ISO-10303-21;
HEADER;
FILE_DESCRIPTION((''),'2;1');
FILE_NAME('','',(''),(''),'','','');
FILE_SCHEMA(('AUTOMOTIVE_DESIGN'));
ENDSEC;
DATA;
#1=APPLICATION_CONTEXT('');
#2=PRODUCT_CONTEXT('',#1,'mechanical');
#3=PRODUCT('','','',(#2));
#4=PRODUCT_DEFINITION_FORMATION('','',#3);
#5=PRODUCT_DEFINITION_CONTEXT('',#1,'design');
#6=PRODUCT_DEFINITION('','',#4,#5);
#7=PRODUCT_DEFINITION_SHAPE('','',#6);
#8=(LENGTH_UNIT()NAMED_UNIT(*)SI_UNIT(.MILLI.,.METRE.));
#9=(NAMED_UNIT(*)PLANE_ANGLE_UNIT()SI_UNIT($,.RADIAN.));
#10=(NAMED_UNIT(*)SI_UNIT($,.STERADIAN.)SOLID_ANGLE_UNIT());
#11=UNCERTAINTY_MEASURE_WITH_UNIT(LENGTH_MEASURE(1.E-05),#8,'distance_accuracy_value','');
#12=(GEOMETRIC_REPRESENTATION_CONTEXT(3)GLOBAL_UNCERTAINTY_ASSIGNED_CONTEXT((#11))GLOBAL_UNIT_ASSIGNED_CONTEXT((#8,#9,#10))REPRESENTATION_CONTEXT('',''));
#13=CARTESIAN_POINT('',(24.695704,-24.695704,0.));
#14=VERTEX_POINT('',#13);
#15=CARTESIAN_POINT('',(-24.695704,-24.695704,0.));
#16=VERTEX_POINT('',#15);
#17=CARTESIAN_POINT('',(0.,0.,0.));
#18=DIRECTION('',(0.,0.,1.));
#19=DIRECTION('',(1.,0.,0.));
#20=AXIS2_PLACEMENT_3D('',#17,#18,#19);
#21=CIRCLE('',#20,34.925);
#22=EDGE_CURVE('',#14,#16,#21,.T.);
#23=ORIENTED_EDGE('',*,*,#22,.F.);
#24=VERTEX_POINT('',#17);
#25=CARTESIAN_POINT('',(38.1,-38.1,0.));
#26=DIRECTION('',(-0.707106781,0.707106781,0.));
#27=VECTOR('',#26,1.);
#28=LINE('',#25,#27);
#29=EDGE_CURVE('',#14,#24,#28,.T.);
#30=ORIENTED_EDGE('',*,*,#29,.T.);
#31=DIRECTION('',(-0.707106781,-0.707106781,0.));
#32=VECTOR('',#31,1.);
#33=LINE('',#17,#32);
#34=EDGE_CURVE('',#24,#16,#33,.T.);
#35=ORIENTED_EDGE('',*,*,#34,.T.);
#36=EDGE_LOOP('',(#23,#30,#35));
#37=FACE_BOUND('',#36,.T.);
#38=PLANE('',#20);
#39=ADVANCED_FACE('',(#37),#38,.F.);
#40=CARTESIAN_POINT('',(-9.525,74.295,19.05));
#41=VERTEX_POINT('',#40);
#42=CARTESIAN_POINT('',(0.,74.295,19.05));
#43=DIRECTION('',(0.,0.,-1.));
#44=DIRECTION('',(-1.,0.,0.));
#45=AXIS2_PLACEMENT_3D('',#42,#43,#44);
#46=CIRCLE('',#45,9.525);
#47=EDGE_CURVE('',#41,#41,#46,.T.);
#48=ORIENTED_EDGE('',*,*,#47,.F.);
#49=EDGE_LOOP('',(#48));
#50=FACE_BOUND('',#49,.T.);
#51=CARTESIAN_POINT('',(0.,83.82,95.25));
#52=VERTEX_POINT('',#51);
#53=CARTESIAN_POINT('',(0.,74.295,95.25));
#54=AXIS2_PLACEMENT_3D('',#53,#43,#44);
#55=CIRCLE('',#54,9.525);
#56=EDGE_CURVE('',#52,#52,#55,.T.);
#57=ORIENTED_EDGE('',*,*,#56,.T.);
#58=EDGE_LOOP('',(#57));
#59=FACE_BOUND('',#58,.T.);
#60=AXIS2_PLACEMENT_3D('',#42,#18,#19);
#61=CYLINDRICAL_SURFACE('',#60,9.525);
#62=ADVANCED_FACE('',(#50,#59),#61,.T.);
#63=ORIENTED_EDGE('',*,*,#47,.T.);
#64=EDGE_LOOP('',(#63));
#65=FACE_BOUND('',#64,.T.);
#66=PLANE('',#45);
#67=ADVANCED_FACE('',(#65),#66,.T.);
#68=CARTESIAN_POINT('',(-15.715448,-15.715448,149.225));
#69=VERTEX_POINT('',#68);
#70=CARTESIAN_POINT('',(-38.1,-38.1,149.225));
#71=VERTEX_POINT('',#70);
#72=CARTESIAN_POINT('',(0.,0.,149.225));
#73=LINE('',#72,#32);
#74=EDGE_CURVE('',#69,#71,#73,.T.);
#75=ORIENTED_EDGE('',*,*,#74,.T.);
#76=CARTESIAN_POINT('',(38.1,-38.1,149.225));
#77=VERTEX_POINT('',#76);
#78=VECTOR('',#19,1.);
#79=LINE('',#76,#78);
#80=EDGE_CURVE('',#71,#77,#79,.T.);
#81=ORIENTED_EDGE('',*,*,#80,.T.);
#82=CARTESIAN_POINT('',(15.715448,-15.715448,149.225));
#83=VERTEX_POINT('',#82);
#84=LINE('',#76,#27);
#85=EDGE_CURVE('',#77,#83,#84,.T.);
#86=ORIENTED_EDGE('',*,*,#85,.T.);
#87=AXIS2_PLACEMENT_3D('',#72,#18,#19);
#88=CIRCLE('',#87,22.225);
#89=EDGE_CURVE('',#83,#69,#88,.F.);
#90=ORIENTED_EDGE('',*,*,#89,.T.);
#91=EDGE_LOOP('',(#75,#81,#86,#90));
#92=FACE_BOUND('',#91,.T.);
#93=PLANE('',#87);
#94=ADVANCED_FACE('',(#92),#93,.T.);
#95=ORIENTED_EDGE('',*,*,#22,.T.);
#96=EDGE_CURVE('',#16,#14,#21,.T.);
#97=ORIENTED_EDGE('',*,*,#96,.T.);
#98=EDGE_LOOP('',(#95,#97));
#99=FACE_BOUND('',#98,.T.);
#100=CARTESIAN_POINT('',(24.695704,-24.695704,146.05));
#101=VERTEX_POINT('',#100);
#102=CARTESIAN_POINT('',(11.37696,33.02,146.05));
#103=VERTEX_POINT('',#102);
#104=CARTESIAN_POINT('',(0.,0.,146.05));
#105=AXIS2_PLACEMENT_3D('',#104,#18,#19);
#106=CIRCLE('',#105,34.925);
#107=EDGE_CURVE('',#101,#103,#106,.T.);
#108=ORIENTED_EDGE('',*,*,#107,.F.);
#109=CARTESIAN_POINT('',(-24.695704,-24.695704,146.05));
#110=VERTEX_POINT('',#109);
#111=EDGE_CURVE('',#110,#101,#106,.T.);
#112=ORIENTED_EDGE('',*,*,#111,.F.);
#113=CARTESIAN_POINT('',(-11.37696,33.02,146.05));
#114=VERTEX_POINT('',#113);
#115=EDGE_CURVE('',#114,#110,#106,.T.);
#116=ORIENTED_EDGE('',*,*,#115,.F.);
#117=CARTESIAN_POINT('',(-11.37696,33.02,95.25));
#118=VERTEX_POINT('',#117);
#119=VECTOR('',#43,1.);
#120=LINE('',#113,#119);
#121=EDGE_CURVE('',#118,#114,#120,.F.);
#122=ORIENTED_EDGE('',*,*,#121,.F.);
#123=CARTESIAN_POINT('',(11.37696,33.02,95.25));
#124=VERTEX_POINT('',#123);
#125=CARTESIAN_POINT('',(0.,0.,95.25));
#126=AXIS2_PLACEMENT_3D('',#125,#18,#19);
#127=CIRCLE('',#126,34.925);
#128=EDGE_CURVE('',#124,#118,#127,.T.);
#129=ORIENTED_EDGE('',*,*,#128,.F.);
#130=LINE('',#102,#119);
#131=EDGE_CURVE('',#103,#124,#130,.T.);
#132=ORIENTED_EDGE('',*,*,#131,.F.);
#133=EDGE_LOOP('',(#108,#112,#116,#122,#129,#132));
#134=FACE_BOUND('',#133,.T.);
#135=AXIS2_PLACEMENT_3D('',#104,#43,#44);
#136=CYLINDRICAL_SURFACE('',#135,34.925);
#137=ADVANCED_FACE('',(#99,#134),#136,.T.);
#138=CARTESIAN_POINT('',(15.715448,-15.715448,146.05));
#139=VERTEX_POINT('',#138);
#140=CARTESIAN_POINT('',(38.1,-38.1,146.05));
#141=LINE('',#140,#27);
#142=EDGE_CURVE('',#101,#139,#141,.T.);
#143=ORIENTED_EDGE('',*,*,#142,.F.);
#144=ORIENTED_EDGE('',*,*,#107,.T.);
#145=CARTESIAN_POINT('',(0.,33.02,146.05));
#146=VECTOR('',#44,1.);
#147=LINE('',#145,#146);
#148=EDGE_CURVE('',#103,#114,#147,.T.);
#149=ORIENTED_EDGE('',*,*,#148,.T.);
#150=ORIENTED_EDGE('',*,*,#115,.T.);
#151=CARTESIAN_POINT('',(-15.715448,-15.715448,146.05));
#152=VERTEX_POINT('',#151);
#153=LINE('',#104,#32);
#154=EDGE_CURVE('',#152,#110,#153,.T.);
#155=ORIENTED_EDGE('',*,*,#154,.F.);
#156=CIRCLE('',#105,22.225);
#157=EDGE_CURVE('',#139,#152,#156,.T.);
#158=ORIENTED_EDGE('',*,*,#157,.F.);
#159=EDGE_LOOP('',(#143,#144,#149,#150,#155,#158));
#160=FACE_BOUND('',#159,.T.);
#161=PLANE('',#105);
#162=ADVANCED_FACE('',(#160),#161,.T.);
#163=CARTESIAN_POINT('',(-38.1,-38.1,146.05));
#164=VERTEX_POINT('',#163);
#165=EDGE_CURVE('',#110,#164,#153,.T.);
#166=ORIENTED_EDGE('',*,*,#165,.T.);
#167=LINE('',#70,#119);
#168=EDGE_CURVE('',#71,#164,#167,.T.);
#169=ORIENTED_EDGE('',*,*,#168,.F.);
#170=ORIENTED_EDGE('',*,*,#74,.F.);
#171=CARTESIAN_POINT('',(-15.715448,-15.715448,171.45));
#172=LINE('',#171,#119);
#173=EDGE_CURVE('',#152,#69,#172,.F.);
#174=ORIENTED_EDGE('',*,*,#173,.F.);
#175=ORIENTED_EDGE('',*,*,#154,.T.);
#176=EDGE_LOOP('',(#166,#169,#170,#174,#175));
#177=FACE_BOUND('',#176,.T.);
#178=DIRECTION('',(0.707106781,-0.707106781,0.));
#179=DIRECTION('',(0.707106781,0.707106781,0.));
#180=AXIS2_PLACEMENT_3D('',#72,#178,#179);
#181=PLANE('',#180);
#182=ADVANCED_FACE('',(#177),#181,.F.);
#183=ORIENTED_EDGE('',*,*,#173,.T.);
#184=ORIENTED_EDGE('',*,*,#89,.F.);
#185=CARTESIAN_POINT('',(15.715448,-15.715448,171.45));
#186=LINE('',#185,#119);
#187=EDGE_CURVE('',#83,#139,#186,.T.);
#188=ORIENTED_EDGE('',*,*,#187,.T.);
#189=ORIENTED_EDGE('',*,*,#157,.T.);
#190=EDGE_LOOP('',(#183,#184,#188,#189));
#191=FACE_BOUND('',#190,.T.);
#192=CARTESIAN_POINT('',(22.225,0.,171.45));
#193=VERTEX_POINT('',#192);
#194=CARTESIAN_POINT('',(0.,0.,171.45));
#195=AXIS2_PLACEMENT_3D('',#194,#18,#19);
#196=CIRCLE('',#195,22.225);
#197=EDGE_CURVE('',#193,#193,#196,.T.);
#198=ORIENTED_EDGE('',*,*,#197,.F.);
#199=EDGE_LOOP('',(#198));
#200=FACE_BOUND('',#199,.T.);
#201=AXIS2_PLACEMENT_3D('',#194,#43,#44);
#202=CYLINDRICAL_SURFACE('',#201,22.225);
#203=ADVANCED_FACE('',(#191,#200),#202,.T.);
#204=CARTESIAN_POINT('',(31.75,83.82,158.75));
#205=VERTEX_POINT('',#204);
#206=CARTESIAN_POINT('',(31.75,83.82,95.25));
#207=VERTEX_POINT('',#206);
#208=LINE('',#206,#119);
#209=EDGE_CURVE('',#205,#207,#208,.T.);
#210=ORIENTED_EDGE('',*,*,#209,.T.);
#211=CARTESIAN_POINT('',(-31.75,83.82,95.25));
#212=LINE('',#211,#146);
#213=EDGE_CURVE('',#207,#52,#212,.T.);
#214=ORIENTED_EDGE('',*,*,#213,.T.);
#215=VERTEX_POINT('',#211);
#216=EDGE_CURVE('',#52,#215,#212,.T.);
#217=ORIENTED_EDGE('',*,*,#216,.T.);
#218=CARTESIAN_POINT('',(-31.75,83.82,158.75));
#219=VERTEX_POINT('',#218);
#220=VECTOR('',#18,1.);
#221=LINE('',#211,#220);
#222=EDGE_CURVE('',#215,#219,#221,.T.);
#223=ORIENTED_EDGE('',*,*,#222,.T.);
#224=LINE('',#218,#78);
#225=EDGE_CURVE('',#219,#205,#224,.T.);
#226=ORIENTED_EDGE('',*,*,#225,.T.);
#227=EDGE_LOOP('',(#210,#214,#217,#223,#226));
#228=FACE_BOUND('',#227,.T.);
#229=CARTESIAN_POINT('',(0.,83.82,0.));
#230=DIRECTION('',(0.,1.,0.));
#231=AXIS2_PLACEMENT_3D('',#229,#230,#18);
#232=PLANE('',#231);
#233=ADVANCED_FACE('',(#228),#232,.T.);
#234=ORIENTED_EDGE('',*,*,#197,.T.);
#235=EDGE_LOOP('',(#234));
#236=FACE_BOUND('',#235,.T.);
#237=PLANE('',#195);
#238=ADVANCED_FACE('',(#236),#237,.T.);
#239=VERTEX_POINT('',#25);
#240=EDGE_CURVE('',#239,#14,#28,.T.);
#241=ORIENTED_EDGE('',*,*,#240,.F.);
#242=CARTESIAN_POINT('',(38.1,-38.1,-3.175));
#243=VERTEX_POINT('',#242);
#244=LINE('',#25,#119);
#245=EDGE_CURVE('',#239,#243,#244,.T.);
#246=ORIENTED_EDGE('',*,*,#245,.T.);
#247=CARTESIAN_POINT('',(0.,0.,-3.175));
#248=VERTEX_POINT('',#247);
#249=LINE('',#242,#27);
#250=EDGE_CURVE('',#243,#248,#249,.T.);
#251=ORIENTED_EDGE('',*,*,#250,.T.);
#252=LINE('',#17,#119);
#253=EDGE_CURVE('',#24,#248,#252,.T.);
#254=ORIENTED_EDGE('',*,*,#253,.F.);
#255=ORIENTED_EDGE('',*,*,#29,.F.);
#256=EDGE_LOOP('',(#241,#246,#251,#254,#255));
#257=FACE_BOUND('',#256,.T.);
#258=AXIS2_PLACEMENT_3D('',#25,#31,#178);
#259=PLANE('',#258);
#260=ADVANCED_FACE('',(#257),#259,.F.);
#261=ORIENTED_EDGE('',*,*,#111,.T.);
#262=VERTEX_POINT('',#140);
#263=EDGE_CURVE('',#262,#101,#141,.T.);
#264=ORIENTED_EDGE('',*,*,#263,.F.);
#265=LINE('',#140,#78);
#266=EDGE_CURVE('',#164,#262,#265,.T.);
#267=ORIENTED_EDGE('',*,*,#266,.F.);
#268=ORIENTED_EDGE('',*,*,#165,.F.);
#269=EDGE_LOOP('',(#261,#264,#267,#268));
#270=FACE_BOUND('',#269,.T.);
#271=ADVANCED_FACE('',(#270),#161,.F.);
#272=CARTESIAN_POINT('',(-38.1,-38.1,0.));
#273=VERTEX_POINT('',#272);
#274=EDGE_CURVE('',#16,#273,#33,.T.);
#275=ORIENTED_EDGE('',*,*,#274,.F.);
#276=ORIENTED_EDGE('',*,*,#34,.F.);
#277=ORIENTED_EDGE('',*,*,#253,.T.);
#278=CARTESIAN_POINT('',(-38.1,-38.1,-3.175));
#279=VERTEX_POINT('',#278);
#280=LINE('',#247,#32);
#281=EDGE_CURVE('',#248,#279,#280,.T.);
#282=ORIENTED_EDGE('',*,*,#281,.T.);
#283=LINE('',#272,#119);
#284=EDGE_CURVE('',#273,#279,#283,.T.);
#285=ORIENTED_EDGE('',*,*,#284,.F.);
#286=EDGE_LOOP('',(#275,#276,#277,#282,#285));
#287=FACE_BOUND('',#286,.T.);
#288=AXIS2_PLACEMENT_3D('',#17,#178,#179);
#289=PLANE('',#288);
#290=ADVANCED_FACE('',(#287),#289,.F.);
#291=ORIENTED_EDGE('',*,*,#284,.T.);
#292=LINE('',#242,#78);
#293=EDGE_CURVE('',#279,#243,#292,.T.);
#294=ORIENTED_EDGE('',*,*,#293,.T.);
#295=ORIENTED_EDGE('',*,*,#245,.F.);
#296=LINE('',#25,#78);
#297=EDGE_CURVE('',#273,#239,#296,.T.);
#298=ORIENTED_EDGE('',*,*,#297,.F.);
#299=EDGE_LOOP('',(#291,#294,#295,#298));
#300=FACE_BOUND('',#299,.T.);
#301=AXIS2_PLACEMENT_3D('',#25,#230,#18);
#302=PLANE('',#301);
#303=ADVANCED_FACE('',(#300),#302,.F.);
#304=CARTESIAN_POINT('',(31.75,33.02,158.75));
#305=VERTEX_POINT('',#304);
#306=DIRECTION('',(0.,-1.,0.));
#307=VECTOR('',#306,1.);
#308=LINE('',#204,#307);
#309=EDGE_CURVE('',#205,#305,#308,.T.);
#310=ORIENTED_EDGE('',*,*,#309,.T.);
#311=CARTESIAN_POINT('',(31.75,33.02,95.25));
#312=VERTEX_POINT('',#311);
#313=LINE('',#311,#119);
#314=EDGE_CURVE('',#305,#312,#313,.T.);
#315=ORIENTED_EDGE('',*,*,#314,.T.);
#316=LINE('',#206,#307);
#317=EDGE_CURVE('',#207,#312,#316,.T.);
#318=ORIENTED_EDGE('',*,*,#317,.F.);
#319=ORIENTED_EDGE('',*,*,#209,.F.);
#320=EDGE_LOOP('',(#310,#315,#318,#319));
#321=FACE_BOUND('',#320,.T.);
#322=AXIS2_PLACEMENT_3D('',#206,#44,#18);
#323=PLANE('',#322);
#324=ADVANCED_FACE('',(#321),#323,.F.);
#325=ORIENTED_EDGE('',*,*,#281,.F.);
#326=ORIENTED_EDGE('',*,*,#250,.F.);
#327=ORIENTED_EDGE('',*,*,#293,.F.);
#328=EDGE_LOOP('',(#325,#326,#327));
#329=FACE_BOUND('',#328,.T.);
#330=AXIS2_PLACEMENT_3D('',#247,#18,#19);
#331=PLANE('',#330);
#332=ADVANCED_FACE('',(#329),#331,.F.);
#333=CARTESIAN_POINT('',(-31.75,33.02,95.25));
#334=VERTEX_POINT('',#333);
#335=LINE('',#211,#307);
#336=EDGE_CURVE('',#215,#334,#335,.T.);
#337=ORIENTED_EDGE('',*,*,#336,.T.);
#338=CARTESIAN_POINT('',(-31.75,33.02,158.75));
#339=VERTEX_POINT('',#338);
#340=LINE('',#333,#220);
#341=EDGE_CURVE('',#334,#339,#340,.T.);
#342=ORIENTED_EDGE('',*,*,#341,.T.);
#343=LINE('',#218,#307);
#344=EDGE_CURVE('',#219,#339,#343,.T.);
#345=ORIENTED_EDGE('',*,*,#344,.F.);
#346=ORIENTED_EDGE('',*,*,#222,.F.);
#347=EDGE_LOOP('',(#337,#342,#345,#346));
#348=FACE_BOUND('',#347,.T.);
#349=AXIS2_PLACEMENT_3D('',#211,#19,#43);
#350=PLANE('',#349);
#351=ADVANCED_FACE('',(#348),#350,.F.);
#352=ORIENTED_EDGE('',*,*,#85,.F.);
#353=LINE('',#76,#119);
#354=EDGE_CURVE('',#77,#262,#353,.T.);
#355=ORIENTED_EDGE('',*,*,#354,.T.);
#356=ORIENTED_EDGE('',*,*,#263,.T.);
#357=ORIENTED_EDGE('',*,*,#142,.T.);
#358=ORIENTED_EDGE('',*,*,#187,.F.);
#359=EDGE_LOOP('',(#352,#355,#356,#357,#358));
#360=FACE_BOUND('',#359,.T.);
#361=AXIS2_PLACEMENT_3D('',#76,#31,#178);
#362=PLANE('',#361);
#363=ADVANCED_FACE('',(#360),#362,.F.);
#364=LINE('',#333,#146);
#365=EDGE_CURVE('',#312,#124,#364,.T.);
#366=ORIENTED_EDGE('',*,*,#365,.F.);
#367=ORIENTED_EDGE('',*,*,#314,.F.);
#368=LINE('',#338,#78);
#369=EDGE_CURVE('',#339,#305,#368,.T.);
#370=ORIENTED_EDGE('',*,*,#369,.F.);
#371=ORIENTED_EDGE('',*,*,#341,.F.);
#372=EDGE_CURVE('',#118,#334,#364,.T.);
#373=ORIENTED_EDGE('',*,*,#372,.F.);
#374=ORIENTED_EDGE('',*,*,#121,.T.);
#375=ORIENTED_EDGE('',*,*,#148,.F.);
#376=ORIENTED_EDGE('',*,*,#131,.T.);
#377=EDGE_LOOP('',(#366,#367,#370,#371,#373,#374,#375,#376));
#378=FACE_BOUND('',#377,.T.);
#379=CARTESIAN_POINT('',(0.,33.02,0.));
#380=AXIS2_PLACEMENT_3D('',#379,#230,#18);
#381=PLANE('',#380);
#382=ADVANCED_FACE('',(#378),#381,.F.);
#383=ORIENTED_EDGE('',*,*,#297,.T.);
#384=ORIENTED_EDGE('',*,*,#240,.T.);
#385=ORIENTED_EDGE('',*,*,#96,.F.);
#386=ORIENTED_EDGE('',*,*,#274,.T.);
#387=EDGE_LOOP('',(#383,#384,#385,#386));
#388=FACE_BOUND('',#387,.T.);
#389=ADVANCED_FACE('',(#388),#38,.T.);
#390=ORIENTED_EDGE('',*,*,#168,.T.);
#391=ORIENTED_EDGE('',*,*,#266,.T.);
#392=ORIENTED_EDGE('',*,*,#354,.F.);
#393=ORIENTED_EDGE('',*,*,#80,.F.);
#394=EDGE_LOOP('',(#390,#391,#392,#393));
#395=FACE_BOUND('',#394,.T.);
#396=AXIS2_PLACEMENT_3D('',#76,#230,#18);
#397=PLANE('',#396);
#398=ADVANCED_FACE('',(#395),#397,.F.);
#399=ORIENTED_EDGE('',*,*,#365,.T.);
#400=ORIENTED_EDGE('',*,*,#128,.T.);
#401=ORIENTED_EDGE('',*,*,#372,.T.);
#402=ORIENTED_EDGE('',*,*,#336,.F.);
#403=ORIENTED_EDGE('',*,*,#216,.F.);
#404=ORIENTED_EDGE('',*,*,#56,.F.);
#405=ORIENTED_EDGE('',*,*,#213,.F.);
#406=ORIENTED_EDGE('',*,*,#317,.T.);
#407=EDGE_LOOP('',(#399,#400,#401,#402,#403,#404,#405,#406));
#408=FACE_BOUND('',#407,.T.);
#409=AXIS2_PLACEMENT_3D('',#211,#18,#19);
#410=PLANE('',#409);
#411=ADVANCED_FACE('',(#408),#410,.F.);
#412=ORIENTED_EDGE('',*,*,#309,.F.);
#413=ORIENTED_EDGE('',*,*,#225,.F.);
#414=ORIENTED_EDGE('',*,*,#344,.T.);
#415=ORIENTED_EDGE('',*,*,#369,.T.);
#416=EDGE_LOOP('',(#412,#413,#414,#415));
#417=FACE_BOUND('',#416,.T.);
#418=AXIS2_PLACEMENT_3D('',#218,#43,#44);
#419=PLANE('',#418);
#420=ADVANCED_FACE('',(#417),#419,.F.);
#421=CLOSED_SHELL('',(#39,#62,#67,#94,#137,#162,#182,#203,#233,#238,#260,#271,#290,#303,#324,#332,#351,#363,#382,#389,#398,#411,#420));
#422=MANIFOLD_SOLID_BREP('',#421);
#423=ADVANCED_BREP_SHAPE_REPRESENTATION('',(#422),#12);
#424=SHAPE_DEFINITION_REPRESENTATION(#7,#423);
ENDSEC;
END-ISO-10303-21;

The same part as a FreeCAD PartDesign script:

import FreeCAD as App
import Part
import Sketcher
from FreeCAD import Vector
Q = App.Units.Quantity


def add_polygon(sketch, points):
    """Adds a closed chain of lines whose ends are joined by coincident constraints."""
    first, n = sketch.GeometryCount, len(points)
    for a, b in zip(points, points[1:] + points[:1]):
        sketch.addGeometry(Part.LineSegment(App.Vector(*a, 0), App.Vector(*b, 0)), False)
    for i in range(n):
        sketch.addConstraint(Sketcher.Constraint("Coincident", first + i, 2, first + (i + 1) % n, 1))

doc = App.newDocument("Part")
body = doc.addObject("PartDesign::Body", "Body")

sketch1 = body.newObject("Sketcher::SketchObject", "Sketch")
sketch1.AttachmentSupport = (doc.getObject("XY_Plane"), [""])
sketch1.MapMode = "FlatFace"
sketch1.addGeometry(Part.Circle(Vector(0, 0, 0), Vector(0, 0, 1), 35), False)
sketch1.addConstraint([
    Sketcher.Constraint("Coincident", 0, 3, -1, 1),
    Sketcher.Constraint("Diameter", 0, Q("2.75 in")),
])
pad1 = body.newObject("PartDesign::Pad", "Pad")
pad1.Profile = sketch1
pad1.Length = Q("5.75 in")

sketch2 = body.newObject("Sketcher::SketchObject", "Sketch001")
sketch2.AttachmentSupport = (doc.getObject("XY_Plane"), [""])
sketch2.MapMode = "FlatFace"
sketch2.AttachmentOffset = App.Placement(Vector(0, 0, 5.75 * 25.4), App.Rotation())
add_polygon(sketch2, [(0, 0), (-38, -38), (38, -38)])
sketch2.addConstraint([
    Sketcher.Constraint("Horizontal", 1),
    Sketcher.Constraint("Coincident", 2, 2, -1, 1),
    Sketcher.Constraint("Perpendicular", 0, 2),
    Sketcher.Constraint("Equal", 0, 2),
    Sketcher.Constraint("DistanceX", 1, 1, 1, 2, Q("3 in")),
])
pad2 = body.newObject("PartDesign::Pad", "Pad001")
pad2.Profile = sketch2
pad2.Length = Q("0.125 in")
doc.recompute()

linearpattern = body.newObject("PartDesign::LinearPattern", "LinearPattern")
linearpattern.Originals = [pad2]
linearpattern.Direction = (doc.getObject("Z_Axis"), [""])
linearpattern.Mode = "offset"
linearpattern.Offset = Q("5.875 in")
linearpattern.Occurrences = 2
linearpattern.Reversed = True
body.Tip = linearpattern

sketch3 = body.newObject("Sketcher::SketchObject", "Sketch002")
sketch3.AttachmentSupport = (doc.getObject("XY_Plane"), [""])
sketch3.MapMode = "FlatFace"
sketch3.AttachmentOffset = App.Placement(Vector(0, 0, 5.75 * 25.4), App.Rotation())
sketch3.addGeometry(Part.Circle(Vector(0, 0, 0), Vector(0, 0, 1), 22), False)
sketch3.addConstraint([
    Sketcher.Constraint("Coincident", 0, 3, -1, 1),
    Sketcher.Constraint("Diameter", 0, Q("1.75 in")),
])
pad3 = body.newObject("PartDesign::Pad", "Pad002")
pad3.Profile = sketch3
pad3.Length = Q("1 in")

sketch4 = body.newObject("Sketcher::SketchObject", "Sketch003")
sketch4.AttachmentSupport = (doc.getObject("XZ_Plane"), [""])
sketch4.MapMode = "FlatFace"
sketch4.AttachmentOffset = App.Placement(Vector(0, 0, -1.3 * 25.4), App.Rotation())
add_polygon(sketch4, [(-32, 95), (-32, 159), (32, 159), (32, 95)])
sketch4.addConstraint([
    Sketcher.Constraint("Vertical", 0),
    Sketcher.Constraint("Horizontal", 1),
    Sketcher.Constraint("Vertical", 2),
    Sketcher.Constraint("Horizontal", 3),
    Sketcher.Constraint("Equal", 3, 0),
    Sketcher.Constraint("DistanceX", 1, 1, 1, 2, Q("2.5 in")),
    Sketcher.Constraint("DistanceX", 0, 2, -1, 1, Q("1.25 in")),
    Sketcher.Constraint("DistanceY", -1, 1, 0, 2, Q("6.25 in")),
])
pad4 = body.newObject("PartDesign::Pad", "Pad003")
pad4.Profile = sketch4
pad4.Length = Q("2 in")
pad4.Reversed = True

sketch5 = body.newObject("Sketcher::SketchObject", "Sketch004")
sketch5.AttachmentSupport = (doc.getObject("XY_Plane"), [""])
sketch5.MapMode = "FlatFace"
sketch5.AttachmentOffset = App.Placement(Vector(0, 0, 3.75 * 25.4), App.Rotation())
sketch5.addGeometry(Part.Circle(Vector(0, 74, 0), Vector(0, 0, 1), 10), False)
sketch5.addConstraint([
    Sketcher.Constraint("PointOnObject", 0, 3, -2),
    Sketcher.Constraint("Diameter", 0, Q("0.75 in")),
    Sketcher.Constraint("DistanceY", -1, 1, 0, 3, Q("2.925 in")),
])
pad5 = body.newObject("PartDesign::Pad", "Pad004")
pad5.Profile = sketch5
pad5.Length = Q("3 in")
pad5.Reversed = True

doc.recompute()
